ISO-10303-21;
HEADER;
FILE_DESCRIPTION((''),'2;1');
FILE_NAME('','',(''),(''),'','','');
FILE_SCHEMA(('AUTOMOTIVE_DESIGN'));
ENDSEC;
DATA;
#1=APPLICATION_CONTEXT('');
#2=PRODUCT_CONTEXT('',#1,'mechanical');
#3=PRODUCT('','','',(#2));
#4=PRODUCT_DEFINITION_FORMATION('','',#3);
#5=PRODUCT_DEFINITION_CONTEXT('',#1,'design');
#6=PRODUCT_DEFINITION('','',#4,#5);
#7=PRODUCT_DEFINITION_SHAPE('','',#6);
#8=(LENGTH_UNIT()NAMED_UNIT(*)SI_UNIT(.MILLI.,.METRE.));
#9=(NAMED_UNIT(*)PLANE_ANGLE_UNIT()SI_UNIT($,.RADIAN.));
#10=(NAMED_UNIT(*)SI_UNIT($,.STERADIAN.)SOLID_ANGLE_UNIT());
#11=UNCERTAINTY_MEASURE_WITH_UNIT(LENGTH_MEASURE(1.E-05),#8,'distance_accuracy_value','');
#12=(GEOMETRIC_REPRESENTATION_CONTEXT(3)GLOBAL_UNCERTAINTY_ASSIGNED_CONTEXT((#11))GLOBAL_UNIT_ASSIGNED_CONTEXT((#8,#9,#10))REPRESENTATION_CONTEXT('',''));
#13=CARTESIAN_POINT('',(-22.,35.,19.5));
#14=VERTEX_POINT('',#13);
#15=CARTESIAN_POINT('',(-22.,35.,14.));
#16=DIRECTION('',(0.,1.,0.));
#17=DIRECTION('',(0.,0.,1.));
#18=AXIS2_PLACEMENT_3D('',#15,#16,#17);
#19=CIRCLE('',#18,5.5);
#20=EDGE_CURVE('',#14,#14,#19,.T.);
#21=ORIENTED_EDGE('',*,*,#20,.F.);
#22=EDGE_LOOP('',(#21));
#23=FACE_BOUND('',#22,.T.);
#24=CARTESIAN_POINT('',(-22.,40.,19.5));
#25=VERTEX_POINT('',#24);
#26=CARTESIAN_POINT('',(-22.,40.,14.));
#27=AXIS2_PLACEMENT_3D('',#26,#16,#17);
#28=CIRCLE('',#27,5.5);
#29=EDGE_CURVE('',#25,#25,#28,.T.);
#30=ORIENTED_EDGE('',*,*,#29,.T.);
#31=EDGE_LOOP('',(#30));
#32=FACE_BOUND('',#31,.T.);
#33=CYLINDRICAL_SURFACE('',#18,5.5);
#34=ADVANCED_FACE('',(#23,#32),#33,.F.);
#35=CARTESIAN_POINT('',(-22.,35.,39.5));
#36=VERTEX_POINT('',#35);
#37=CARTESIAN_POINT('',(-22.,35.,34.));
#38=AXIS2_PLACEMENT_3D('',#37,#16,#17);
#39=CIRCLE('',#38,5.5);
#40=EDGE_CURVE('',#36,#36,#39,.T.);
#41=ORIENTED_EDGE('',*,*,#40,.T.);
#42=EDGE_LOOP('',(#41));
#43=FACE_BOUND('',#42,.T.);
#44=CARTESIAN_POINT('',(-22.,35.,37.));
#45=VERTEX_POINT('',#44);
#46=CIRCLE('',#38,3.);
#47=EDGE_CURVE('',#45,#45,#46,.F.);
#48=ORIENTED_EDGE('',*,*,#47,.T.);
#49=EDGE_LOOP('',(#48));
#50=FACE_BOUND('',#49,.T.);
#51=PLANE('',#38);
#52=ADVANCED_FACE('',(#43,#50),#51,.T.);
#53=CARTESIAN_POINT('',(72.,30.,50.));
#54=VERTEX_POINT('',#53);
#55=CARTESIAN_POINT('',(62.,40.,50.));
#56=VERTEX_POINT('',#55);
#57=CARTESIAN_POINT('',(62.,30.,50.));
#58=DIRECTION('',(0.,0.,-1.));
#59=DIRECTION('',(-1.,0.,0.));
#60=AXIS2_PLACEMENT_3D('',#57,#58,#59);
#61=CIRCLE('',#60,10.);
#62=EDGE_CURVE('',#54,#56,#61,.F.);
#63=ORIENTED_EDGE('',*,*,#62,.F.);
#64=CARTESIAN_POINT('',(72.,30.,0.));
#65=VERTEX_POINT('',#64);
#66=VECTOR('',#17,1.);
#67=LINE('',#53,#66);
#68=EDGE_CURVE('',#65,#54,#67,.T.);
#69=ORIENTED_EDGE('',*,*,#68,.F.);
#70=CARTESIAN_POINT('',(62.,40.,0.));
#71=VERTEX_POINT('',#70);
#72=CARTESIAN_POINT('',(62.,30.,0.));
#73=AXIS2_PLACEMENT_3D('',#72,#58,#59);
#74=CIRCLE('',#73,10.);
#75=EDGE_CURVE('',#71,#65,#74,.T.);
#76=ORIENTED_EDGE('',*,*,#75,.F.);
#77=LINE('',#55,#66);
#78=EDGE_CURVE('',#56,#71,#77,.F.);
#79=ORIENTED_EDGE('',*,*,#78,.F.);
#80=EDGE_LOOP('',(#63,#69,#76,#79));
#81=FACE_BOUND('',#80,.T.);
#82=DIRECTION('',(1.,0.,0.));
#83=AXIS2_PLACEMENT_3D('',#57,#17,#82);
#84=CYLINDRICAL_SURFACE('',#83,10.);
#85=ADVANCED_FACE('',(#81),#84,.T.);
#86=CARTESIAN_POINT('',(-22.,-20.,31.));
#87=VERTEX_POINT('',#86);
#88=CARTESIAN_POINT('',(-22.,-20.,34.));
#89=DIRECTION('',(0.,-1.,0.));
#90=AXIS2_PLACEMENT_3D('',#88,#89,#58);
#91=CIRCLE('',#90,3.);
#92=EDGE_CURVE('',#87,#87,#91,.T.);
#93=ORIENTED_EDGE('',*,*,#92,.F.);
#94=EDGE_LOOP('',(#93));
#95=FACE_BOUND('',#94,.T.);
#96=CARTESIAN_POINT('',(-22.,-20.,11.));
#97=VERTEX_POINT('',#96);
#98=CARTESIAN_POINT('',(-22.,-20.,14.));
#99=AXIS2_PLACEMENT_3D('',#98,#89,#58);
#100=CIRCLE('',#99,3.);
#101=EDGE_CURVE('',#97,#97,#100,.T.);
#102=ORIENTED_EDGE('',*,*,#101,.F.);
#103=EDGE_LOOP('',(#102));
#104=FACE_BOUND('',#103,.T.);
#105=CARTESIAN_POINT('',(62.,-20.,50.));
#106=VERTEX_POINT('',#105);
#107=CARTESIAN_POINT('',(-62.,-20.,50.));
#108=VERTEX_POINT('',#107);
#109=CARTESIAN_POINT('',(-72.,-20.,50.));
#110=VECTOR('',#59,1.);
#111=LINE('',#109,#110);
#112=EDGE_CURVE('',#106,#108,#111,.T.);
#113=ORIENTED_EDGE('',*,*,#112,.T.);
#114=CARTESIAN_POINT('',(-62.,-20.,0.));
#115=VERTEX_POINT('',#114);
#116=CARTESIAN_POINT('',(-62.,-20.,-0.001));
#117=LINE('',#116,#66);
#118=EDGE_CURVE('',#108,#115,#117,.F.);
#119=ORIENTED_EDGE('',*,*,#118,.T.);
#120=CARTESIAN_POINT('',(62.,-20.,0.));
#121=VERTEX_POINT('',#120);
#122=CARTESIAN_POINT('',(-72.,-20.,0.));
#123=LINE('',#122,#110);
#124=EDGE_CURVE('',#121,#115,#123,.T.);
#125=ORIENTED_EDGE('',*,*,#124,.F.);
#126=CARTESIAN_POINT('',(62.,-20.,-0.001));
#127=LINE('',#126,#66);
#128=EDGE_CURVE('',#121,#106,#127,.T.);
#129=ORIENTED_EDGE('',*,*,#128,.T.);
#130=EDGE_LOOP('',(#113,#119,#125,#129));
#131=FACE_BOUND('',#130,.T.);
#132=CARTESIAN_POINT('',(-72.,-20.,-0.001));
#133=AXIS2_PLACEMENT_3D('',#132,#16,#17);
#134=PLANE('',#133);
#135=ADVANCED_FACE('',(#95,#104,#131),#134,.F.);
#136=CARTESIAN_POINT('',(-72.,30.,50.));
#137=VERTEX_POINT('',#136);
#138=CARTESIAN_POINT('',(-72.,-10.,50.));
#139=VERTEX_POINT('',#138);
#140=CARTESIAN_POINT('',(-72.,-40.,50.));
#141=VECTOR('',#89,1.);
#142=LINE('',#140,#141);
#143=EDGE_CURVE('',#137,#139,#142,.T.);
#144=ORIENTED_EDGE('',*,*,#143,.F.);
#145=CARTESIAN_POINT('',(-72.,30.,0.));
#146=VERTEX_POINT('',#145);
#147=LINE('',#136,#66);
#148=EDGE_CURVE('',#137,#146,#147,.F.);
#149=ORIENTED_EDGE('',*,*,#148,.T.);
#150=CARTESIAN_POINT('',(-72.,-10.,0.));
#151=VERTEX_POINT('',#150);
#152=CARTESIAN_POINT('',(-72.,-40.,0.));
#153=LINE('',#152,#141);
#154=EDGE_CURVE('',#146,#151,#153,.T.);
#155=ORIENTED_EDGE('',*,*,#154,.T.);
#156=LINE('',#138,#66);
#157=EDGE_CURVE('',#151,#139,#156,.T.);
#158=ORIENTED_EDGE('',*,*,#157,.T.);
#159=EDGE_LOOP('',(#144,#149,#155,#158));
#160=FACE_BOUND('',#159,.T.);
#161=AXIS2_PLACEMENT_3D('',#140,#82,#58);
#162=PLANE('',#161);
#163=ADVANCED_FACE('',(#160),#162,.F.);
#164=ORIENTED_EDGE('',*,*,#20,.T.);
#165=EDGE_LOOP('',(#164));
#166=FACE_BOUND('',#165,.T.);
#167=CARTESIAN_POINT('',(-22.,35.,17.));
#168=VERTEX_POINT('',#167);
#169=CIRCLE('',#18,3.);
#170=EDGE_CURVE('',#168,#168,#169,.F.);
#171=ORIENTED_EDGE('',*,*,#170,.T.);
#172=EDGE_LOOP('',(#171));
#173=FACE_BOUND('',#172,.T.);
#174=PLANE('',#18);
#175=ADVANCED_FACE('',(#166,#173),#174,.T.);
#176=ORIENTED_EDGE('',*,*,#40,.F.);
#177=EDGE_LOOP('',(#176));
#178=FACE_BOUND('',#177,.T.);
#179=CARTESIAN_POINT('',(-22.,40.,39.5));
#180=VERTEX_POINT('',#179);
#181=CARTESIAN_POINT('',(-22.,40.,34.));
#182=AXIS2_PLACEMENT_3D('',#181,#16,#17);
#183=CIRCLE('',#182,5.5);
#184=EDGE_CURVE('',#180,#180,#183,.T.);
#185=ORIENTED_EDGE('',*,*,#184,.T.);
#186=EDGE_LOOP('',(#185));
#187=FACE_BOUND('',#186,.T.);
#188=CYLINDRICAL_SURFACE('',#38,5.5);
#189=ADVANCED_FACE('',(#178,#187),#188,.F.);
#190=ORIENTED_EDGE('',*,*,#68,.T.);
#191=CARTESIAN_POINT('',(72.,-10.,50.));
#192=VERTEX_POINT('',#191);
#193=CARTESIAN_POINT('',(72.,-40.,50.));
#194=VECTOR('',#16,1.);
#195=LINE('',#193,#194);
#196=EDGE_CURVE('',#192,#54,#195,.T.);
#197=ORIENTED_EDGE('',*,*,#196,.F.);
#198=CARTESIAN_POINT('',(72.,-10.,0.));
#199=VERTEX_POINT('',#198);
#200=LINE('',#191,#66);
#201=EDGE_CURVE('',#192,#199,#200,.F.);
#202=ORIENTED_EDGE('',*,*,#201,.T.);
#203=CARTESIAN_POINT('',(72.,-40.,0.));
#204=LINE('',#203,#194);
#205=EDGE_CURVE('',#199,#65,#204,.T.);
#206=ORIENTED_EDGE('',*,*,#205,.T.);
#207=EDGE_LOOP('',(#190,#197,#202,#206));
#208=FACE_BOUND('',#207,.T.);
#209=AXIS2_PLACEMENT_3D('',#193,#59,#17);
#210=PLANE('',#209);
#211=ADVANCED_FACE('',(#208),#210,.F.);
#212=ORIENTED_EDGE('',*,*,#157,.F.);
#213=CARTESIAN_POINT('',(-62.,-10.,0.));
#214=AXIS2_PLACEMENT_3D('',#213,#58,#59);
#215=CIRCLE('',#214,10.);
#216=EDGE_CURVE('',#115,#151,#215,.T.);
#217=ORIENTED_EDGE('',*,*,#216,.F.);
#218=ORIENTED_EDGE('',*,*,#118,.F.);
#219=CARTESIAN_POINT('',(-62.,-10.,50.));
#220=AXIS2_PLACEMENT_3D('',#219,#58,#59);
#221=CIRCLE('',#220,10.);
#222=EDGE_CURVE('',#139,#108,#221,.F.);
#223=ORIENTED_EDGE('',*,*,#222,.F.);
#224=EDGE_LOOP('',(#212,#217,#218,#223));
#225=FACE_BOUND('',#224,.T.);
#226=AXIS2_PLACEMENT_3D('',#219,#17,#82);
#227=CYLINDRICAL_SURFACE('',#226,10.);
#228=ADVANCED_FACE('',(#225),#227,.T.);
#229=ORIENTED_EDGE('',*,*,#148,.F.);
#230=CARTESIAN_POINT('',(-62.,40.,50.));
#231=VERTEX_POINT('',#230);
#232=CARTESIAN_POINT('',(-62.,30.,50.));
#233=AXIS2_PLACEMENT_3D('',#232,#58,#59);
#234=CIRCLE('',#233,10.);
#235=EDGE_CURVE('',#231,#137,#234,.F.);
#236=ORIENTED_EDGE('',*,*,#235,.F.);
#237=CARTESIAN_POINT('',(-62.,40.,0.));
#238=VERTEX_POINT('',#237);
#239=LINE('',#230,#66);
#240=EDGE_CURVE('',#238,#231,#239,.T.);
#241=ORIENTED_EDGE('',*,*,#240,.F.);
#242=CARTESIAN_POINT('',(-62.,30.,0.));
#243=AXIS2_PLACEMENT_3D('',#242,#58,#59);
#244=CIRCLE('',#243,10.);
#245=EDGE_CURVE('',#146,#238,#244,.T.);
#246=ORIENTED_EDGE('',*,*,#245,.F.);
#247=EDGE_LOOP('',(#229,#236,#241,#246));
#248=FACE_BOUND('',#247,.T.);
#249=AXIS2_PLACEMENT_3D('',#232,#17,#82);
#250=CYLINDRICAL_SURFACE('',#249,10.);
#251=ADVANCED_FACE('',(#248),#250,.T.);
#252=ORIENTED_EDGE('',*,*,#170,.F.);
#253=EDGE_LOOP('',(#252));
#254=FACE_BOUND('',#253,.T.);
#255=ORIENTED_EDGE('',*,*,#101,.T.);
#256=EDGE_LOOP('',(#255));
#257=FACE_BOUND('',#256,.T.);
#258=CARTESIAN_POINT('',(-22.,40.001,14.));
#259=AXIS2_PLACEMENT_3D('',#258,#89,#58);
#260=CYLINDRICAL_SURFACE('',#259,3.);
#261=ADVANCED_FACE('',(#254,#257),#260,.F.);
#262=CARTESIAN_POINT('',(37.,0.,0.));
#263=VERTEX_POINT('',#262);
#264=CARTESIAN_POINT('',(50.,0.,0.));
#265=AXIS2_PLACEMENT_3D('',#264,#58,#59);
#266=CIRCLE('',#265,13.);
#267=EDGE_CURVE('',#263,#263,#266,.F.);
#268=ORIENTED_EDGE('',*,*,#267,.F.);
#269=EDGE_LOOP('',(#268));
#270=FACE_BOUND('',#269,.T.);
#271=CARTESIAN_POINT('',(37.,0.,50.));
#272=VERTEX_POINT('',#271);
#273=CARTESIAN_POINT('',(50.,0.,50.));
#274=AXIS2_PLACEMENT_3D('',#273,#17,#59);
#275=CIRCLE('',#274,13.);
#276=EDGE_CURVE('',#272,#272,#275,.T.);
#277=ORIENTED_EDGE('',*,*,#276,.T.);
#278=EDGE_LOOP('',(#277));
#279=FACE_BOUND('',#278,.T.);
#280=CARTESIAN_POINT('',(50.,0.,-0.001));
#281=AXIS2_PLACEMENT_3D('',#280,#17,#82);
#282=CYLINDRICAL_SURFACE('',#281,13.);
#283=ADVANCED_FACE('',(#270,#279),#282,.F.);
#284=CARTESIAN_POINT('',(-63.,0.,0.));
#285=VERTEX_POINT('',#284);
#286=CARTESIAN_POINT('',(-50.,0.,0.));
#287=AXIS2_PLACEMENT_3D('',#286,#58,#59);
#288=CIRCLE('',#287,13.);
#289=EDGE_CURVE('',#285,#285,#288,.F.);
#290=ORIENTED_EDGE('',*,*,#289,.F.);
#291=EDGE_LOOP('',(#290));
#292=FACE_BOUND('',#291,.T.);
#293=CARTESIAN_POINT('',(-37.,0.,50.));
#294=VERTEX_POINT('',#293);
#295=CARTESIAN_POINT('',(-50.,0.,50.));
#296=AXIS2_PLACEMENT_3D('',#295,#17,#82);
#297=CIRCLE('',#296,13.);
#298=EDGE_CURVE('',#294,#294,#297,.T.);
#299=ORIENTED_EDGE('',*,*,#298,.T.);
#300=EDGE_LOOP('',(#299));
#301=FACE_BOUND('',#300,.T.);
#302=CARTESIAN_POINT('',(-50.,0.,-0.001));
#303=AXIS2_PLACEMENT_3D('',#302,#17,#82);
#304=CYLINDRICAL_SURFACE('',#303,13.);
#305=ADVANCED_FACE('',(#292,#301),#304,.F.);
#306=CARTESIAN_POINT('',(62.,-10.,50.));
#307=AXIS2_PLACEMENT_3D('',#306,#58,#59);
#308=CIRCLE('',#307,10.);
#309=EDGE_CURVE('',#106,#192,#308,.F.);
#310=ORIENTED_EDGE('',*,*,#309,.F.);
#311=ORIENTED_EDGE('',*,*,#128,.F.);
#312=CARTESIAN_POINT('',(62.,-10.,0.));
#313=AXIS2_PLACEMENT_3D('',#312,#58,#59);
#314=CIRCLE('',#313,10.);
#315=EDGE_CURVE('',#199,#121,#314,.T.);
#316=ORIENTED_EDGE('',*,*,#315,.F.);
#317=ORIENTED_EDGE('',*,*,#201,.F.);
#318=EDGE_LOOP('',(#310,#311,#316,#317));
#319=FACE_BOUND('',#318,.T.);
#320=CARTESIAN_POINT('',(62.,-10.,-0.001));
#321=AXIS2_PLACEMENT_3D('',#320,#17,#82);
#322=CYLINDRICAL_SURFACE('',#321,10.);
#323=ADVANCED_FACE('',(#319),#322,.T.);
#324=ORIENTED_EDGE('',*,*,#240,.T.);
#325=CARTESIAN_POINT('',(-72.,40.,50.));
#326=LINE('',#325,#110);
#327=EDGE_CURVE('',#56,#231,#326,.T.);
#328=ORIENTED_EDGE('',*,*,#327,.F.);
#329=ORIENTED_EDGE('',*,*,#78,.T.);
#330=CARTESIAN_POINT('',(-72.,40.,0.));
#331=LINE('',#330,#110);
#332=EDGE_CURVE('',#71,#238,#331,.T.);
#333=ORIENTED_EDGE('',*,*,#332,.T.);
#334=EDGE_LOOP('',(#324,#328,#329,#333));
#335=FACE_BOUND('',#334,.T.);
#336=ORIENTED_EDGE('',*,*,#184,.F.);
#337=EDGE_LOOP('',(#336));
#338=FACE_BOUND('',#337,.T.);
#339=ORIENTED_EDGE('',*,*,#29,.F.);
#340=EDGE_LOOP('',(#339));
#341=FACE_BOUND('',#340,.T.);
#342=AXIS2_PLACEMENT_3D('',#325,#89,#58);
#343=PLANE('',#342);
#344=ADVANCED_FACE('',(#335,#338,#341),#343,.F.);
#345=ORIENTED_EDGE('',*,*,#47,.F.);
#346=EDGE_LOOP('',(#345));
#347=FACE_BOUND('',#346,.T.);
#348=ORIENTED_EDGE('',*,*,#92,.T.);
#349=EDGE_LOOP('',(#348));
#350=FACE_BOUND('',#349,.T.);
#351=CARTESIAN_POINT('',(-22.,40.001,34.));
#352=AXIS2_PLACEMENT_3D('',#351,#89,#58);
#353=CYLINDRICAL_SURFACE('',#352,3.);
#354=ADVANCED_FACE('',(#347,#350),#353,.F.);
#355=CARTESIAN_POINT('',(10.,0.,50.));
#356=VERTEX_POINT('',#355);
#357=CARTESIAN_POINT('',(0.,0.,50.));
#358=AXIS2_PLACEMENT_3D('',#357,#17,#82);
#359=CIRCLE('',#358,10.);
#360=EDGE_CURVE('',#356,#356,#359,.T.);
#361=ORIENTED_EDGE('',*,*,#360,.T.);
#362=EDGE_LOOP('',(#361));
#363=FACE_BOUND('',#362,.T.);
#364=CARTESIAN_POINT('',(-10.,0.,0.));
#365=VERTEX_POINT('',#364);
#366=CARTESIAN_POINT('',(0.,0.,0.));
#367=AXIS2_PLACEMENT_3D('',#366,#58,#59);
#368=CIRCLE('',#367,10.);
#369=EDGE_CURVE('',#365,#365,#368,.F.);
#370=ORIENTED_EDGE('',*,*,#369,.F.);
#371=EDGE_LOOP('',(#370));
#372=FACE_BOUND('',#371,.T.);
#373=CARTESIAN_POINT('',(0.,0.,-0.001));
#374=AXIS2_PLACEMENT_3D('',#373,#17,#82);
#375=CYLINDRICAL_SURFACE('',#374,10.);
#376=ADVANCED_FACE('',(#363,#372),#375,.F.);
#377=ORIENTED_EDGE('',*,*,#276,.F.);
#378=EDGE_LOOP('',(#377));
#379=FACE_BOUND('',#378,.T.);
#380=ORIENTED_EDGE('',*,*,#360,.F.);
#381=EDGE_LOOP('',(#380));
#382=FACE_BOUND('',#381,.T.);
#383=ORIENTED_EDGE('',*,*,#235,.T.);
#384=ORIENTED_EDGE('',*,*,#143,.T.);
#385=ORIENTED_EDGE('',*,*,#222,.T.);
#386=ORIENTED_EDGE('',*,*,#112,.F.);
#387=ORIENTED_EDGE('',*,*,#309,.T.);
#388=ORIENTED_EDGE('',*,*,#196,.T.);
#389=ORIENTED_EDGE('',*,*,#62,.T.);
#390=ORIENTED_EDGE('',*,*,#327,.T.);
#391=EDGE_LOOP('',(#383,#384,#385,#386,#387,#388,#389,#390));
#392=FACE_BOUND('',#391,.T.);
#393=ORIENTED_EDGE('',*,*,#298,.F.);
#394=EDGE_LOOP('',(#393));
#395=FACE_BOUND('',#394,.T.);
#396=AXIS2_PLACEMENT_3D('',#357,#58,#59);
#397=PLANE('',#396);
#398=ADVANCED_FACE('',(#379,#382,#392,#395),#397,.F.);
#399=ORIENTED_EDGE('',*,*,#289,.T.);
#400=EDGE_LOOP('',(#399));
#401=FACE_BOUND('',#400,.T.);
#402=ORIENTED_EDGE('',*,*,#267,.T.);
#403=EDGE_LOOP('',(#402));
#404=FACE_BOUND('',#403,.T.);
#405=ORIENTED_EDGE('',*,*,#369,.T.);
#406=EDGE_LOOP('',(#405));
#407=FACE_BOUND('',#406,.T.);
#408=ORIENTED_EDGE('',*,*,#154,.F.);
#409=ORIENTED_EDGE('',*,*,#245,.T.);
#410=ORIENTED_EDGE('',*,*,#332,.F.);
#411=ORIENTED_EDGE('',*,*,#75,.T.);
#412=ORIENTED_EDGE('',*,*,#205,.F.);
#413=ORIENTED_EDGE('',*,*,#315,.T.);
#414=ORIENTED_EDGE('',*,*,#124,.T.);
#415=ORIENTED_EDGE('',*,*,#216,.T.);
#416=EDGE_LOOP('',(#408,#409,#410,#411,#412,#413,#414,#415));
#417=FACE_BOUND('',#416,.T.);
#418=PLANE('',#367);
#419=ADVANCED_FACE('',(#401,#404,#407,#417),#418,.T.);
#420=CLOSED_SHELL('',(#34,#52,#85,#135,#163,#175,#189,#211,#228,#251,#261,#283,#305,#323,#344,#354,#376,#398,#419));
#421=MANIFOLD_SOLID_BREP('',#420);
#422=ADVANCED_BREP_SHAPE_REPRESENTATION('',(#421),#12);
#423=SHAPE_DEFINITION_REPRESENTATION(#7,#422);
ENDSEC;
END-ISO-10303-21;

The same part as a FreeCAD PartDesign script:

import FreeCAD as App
import Part
import Sketcher
from FreeCAD import Vector


def edges_at(feature, points):
    """Names of the edges that pass closest to the given points."""
    edges = feature.Shape.Edges
    near = lambda p: min(range(len(edges)), key=lambda i: edges[i].distToShape(Part.Vertex(*p))[0])
    return sorted({f"Edge{near(p) + 1}" for p in points})

doc = App.newDocument("Part")
body = doc.addObject("PartDesign::Body", "Body")

# Sketch on XY plane
sketch1 = body.newObject("Sketcher::SketchObject", "Sketch")
sketch1.AttachmentSupport = (doc.getObject("XY_Plane"), [""])
sketch1.MapMode = "FlatFace"
sketch1.addGeometry([
    Part.LineSegment(Vector(-72, 40, 0), Vector(-72, -40, 0)),
    Part.LineSegment(Vector(-72, -40, 0), Vector(72, -40, 0)),
    Part.LineSegment(Vector(72, -40, 0), Vector(72, 40, 0)),
    Part.LineSegment(Vector(72, 40, 0), Vector(-72, 40, 0)),
], False)
sketch1.addConstraint([
    Sketcher.Constraint("Coincident", 0, 2, 1, 1),
    Sketcher.Constraint("Coincident", 1, 2, 2, 1),
    Sketcher.Constraint("Coincident", 2, 2, 3, 1),
    Sketcher.Constraint("Coincident", 3, 2, 0, 1),
    Sketcher.Constraint("Vertical", 0),
    Sketcher.Constraint("Horizontal", 1),
    Sketcher.Constraint("Vertical", 2),
    Sketcher.Constraint("Horizontal", 3),
    Sketcher.Constraint("Symmetric", 0, 2, 2, 2, -1, 1),
    Sketcher.Constraint("DistanceX", 1, 1, 1, 2, 144.0),
    Sketcher.Constraint("DistanceY", 0, 2, 0, 1, 80.0),
])
pad1 = body.newObject("PartDesign::Pad", "Pad")
pad1.Profile = sketch1
pad1.Length = 50

# Sketch on XY plane
sketch2 = body.newObject("Sketcher::SketchObject", "Sketch001")
sketch2.AttachmentSupport = (doc.getObject("XY_Plane"), [""])
sketch2.MapMode = "FlatFace"
sketch2.AttachmentOffset = App.Placement(Vector(0, 0, 50), App.Rotation())
sketch2.addGeometry(Part.Circle(Vector(0, 0, 0), Vector(0, 0, 1), 10), False)
sketch2.addConstraint([
    Sketcher.Constraint("Coincident", 0, 3, -1, 1),
    Sketcher.Constraint("Diameter", 0, 20.0),
])
pocket1 = body.newObject("PartDesign::Pocket", "Pocket")
pocket1.Profile = sketch2
pocket1.Type = "UpToFirst"

# Sketch on XY plane
sketch3 = body.newObject("Sketcher::SketchObject", "Sketch002")
sketch3.AttachmentSupport = (doc.getObject("XY_Plane"), [""])
sketch3.MapMode = "FlatFace"
sketch3.AttachmentOffset = App.Placement(Vector(0, 0, 50), App.Rotation())
sketch3.addGeometry(Part.Circle(Vector(-50, 0, 0), Vector(0, 0, 1), 13), False)
sketch3.addConstraint([
    Sketcher.Constraint("PointOnObject", 0, 3, -1),
    Sketcher.Constraint("Diameter", 0, 26.0),
    Sketcher.Constraint("DistanceX", 0, 3, -1, 1, 50.0),
])
pocket2 = body.newObject("PartDesign::Pocket", "Pocket001")
pocket2.Profile = sketch3
pocket2.Type = "UpToFirst"

# Sketch on XY plane
sketch4 = body.newObject("Sketcher::SketchObject", "Sketch003")
sketch4.AttachmentSupport = (doc.getObject("XY_Plane"), [""])
sketch4.MapMode = "FlatFace"
sketch4.AttachmentOffset = App.Placement(Vector(0, 0, 50), App.Rotation())
sketch4.addGeometry(Part.Circle(Vector(50, 0, 0), Vector(0, 0, 1), 13), False)
sketch4.addConstraint([
    Sketcher.Constraint("PointOnObject", 0, 3, -1),
    Sketcher.Constraint("Diameter", 0, 26.0),
    Sketcher.Constraint("DistanceX", -1, 1, 0, 3, 50.0),
])
pocket3 = body.newObject("PartDesign::Pocket", "Pocket002")
pocket3.Profile = sketch4
pocket3.Type = "UpToFirst"

# Sketch on XY plane
sketch5 = body.newObject("Sketcher::SketchObject", "Sketch004")
sketch5.AttachmentSupport = (doc.getObject("XY_Plane"), [""])
sketch5.MapMode = "FlatFace"
sketch5.AttachmentOffset = App.Placement(Vector(0, 0, 50), App.Rotation())
sketch5.addGeometry([
    Part.LineSegment(Vector(-72, -20, 0), Vector(-72, -40, 0)),
    Part.LineSegment(Vector(-72, -40, 0), Vector(72, -40, 0)),
    Part.LineSegment(Vector(72, -40, 0), Vector(72, -20, 0)),
    Part.LineSegment(Vector(72, -20, 0), Vector(-72, -20, 0)),
], False)
sketch5.addConstraint([
    Sketcher.Constraint("Coincident", 0, 2, 1, 1),
    Sketcher.Constraint("Coincident", 1, 2, 2, 1),
    Sketcher.Constraint("Coincident", 2, 2, 3, 1),
    Sketcher.Constraint("Coincident", 3, 2, 0, 1),
    Sketcher.Constraint("Vertical", 0),
    Sketcher.Constraint("Horizontal", 1),
    Sketcher.Constraint("Vertical", 2),
    Sketcher.Constraint("Horizontal", 3),
    Sketcher.Constraint("DistanceX", 1, 1, 1, 2, 144.0),
    Sketcher.Constraint("DistanceY", 0, 2, 0, 1, 20.0),
    Sketcher.Constraint("DistanceX", 0, 2, -1, 1, 72.0),
    Sketcher.Constraint("DistanceY", 0, 2, -1, 1, 40.0),
])
pocket4 = body.newObject("PartDesign::Pocket", "Pocket003")
pocket4.Profile = sketch5
pocket4.Type = "UpToFirst"

# Sketch on XZ plane
sketch6 = body.newObject("Sketcher::SketchObject", "Sketch005")
sketch6.AttachmentSupport = (doc.getObject("XZ_Plane"), [""])
sketch6.MapMode = "FlatFace"
sketch6.AttachmentOffset = App.Placement(Vector(0, 0, 20), App.Rotation())
sketch6.addGeometry(Part.Circle(Vector(-22, 34, 0), Vector(0, 0, 1), 3), False)
sketch6.addConstraint([
    Sketcher.Constraint("Diameter", 0, 6.0),
    Sketcher.Constraint("DistanceX", 0, 3, -1, 1, 22.0),
    Sketcher.Constraint("DistanceY", -1, 1, 0, 3, 34.0),
])
pocket5 = body.newObject("PartDesign::Pocket", "Pocket004")
pocket5.Profile = sketch6
pocket5.Type = "UpToFirst"

# Sketch on XZ plane
sketch7 = body.newObject("Sketcher::SketchObject", "Sketch006")
sketch7.AttachmentSupport = (doc.getObject("XZ_Plane"), [""])
sketch7.MapMode = "FlatFace"
sketch7.AttachmentOffset = App.Placement(Vector(0, 0, 20), App.Rotation())
sketch7.addGeometry(Part.Circle(Vector(-22, 14, 0), Vector(0, 0, 1), 3), False)
sketch7.addConstraint([
    Sketcher.Constraint("Diameter", 0, 6.0),
    Sketcher.Constraint("DistanceX", 0, 3, -1, 1, 22.0),
    Sketcher.Constraint("DistanceY", -1, 1, 0, 3, 14.0),
])
pocket6 = body.newObject("PartDesign::Pocket", "Pocket005")
pocket6.Profile = sketch7
pocket6.Type = "UpToFirst"
doc.recompute()

fillet = body.newObject("PartDesign::Fillet", "Fillet")
fillet.Base = (pocket6, edges_at(pocket6, [(72, -20, 25)]))
fillet.Radius = 10
doc.recompute()

fillet2 = body.newObject("PartDesign::Fillet", "Fillet001")
fillet2.Base = (fillet, edges_at(fillet, [(72, 40, 25)]))
fillet2.Radius = 10
doc.recompute()

fillet3 = body.newObject("PartDesign::Fillet", "Fillet002")
fillet3.Base = (fillet2, edges_at(fillet2, [(-72, 40, 25)]))
fillet3.Radius = 10
doc.recompute()

fillet4 = body.newObject("PartDesign::Fillet", "Fillet003")
fillet4.Base = (fillet3, edges_at(fillet3, [(-72, -20, 25)]))
fillet4.Radius = 10

# Sketch on XZ plane
sketch8 = body.newObject("Sketcher::SketchObject", "Sketch007")
sketch8.AttachmentSupport = (doc.getObject("XZ_Plane"), [""])
sketch8.MapMode = "FlatFace"
sketch8.AttachmentOffset = App.Placement(Vector(0, 0, -40), App.Rotation())
sketch8.addGeometry([
    Part.Circle(Vector(-22, 14, 0), Vector(0, 0, 1), 6),
    Part.Circle(Vector(-22, 34, 0), Vector(0, 0, 1), 6),
], False)
sketch8.addConstraint([
    Sketcher.Constraint("Equal", 0, 1),
    Sketcher.Constraint("Vertical", 0, 3, 1, 3),
    Sketcher.Constraint("Diameter", 0, 11.0),
    Sketcher.Constraint("DistanceX", 0, 3, -1, 1, 22.0),
    Sketcher.Constraint("DistanceY", -1, 1, 0, 3, 14.0),
    Sketcher.Constraint("DistanceY", -1, 1, 1, 3, 34.0),
])
pocket7 = body.newObject("PartDesign::Pocket", "Pocket006")
pocket7.Profile = sketch8
pocket7.Length = 5
pocket7.Reversed = True

doc.recompute()
